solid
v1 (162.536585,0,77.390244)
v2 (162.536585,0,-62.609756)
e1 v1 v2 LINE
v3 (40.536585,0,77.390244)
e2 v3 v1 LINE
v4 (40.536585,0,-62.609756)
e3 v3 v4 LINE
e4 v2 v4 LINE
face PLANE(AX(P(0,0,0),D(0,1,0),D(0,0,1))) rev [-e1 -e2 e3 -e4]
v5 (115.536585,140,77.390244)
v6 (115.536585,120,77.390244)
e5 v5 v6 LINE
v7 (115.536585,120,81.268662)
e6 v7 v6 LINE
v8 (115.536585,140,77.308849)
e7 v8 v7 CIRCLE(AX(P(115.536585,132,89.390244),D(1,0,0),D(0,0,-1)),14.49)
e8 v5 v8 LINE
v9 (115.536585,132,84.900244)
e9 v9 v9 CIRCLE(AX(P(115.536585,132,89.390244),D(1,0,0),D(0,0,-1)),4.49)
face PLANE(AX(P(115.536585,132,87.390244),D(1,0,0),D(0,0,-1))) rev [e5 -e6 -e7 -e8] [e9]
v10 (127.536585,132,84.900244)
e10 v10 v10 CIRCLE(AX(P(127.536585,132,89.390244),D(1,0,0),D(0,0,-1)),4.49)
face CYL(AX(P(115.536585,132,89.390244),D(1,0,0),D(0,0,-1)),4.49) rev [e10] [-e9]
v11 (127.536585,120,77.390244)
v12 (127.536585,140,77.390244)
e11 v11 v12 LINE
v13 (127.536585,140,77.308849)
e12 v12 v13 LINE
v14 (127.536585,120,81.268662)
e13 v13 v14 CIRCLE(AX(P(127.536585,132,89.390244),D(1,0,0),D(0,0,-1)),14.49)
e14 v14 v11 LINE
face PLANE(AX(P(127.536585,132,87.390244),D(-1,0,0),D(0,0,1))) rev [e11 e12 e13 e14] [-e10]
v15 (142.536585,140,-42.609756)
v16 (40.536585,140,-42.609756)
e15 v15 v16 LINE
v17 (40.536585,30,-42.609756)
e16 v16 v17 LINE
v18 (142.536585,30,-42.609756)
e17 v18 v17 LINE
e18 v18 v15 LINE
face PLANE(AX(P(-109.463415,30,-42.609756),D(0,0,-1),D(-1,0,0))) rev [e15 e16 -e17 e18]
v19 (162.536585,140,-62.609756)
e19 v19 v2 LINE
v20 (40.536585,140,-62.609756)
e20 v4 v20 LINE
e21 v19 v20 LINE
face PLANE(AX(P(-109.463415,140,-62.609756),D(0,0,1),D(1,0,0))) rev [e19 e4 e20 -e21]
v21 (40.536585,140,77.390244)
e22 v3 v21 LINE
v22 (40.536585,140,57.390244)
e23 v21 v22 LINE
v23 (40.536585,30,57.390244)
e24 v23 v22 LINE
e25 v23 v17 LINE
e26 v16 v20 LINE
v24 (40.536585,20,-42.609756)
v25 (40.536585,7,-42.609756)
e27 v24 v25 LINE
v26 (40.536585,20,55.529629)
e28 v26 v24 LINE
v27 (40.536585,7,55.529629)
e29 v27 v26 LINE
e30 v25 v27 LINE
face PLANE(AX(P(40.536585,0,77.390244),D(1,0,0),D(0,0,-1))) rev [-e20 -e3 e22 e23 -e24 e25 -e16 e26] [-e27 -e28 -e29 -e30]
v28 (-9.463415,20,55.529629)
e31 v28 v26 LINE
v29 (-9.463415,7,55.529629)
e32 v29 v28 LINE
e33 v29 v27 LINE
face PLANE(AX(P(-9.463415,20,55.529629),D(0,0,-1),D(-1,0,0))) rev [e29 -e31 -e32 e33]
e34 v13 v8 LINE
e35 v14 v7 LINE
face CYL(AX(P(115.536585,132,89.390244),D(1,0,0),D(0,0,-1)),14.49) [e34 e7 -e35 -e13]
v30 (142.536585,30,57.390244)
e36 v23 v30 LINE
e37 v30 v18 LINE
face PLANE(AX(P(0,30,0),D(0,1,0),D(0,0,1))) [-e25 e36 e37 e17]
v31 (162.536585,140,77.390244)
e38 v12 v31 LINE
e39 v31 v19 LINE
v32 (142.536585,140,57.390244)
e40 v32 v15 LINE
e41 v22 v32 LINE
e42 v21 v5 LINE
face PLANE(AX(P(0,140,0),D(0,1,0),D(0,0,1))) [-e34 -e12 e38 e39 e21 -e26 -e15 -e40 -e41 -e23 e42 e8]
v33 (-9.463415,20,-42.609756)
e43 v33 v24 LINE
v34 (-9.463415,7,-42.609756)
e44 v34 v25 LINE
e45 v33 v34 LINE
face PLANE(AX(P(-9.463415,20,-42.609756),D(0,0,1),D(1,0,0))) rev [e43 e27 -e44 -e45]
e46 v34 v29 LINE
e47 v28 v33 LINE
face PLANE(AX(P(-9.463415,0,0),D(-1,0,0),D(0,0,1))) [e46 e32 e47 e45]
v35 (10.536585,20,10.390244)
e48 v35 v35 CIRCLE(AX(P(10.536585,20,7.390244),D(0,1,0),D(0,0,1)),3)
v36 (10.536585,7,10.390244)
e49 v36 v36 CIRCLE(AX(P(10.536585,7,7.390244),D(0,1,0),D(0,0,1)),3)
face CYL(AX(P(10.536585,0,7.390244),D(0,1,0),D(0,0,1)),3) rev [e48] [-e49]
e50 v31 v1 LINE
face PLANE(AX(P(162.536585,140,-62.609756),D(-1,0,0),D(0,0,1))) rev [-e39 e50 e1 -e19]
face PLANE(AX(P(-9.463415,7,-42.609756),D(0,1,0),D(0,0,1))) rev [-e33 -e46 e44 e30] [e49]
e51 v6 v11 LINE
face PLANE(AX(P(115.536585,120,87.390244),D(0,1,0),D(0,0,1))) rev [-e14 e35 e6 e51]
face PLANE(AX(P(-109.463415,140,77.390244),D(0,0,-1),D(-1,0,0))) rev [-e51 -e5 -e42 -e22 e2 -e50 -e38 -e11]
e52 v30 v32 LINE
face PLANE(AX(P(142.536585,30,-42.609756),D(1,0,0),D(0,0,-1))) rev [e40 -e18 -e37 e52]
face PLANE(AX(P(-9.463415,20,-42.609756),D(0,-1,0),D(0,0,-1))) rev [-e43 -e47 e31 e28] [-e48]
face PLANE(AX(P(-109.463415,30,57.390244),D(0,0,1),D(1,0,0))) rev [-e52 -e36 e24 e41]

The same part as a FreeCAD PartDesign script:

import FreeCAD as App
import Part
import Sketcher

V = App.Vector
Q = App.Units.Quantity

doc = App.newDocument("Part")
body = doc.addObject("PartDesign::Body", "Body")

# Sketch on XZ plane
sketch1 = body.newObject("Sketcher::SketchObject", "Sketch")
sketch1.AttachmentSupport = (doc.getObject("XZ_Plane"), [""])
sketch1.MapMode = "FlatFace"
sketch1.addGeometry([
    Part.LineSegment(V(-109, -63, 0), V(-109, 77, 0)),
    Part.LineSegment(V(-109, 77, 0), V(163, 77, 0)),
    Part.LineSegment(V(163, 77, 0), V(163, -63, 0)),
    Part.LineSegment(V(163, -63, 0), V(-109, -63, 0)),
], False)
sketch1.addConstraint([
    Sketcher.Constraint("Coincident", 0, 2, 1, 1),
    Sketcher.Constraint("Coincident", 1, 2, 2, 1),
    Sketcher.Constraint("Coincident", 2, 2, 3, 1),
    Sketcher.Constraint("Coincident", 3, 2, 0, 1),
    Sketcher.Constraint("Vertical", 0),
    Sketcher.Constraint("Horizontal", 1),
    Sketcher.Constraint("Vertical", 2),
    Sketcher.Constraint("Horizontal", 3),
    Sketcher.Constraint("DistanceX", 1, 1, 1, 2, Q("272 mm")),
    Sketcher.Constraint("DistanceY", 0, 1, 0, 2, Q("140 mm")),
    Sketcher.Constraint("DistanceX", 0, 2, -1, 1, Q("109.463415 mm")),
    Sketcher.Constraint("DistanceY", -1, 1, 0, 2, Q("77.390244 mm")),
])
pad1 = body.newObject("PartDesign::Pad", "Pad")
pad1.Profile = sketch1
pad1.Length = 140
pad1.Reversed = True

# Sketch on XZ plane
sketch2 = body.newObject("Sketcher::SketchObject", "Sketch001")
sketch2.AttachmentSupport = (doc.getObject("XZ_Plane"), [""])
sketch2.MapMode = "FlatFace"
sketch2.AttachmentOffset = App.Placement(V(0, 0, -140), App.Rotation())
sketch2.addGeometry([
    Part.LineSegment(V(-109, -43, 0), V(-109, 57, 0)),
    Part.LineSegment(V(-109, 57, 0), V(143, 57, 0)),
    Part.LineSegment(V(143, 57, 0), V(143, -43, 0)),
    Part.LineSegment(V(143, -43, 0), V(-109, -43, 0)),
], False)
sketch2.addConstraint([
    Sketcher.Constraint("Coincident", 0, 2, 1, 1),
    Sketcher.Constraint("Coincident", 1, 2, 2, 1),
    Sketcher.Constraint("Coincident", 2, 2, 3, 1),
    Sketcher.Constraint("Coincident", 3, 2, 0, 1),
    Sketcher.Constraint("Vertical", 0),
    Sketcher.Constraint("Horizontal", 1),
    Sketcher.Constraint("Vertical", 2),
    Sketcher.Constraint("Horizontal", 3),
    Sketcher.Constraint("DistanceX", 1, 1, 1, 2, Q("252 mm")),
    Sketcher.Constraint("DistanceY", 0, 1, 0, 2, Q("100 mm")),
    Sketcher.Constraint("DistanceX", 0, 2, -1, 1, Q("109.463415 mm")),
    Sketcher.Constraint("DistanceY", -1, 1, 0, 2, Q("57.390244 mm")),
])
pocket1 = body.newObject("PartDesign::Pocket", "Pocket")
pocket1.Profile = sketch2
pocket1.Length = 110
pocket1.Reversed = True

# Sketch on XY plane
sketch3 = body.newObject("Sketcher::SketchObject", "Sketch002")
sketch3.AttachmentSupport = (doc.getObject("XY_Plane"), [""])
sketch3.MapMode = "FlatFace"
sketch3.AttachmentOffset = App.Placement(V(0, 0, 77.390244), App.Rotation())
sketch3.addGeometry([
    Part.LineSegment(V(116, 132, 0), V(116, 120, 0)),
    Part.LineSegment(V(116, 120, 0), V(128, 120, 0)),
    Part.LineSegment(V(128, 120, 0), V(128, 132, 0)),
    Part.LineSegment(V(128, 132, 0), V(116, 132, 0)),
], False)
sketch3.addConstraint([
    Sketcher.Constraint("Coincident", 0, 2, 1, 1),
    Sketcher.Constraint("Coincident", 1, 2, 2, 1),
    Sketcher.Constraint("Coincident", 2, 2, 3, 1),
    Sketcher.Constraint("Coincident", 3, 2, 0, 1),
    Sketcher.Constraint("Vertical", 0),
    Sketcher.Constraint("Horizontal", 1),
    Sketcher.Constraint("Vertical", 2),
    Sketcher.Constraint("Horizontal", 3),
    Sketcher.Constraint("Equal", 3, 0),
    Sketcher.Constraint("DistanceX", 1, 1, 1, 2, Q("12 mm")),
    Sketcher.Constraint("DistanceY", -1, 1, 0, 2, Q("120 mm")),
    Sketcher.Constraint("DistanceX", -1, 1, 0, 2, Q("115.536585 mm")),
])
pad2 = body.newObject("PartDesign::Pad", "Pad001")
pad2.Profile = sketch3
pad2.Length = 10

# Sketch on YZ plane
sketch4 = body.newObject("Sketcher::SketchObject", "Sketch003")
sketch4.AttachmentSupport = (doc.getObject("YZ_Plane"), [""])
sketch4.MapMode = "FlatFace"
sketch4.AttachmentOffset = App.Placement(V(0, 0, 127.536585), App.Rotation())
sketch4.addGeometry([
    Part.Circle(V(132, 89.4, 0), V(0, 0, 1), 14.5),
    Part.Circle(V(132, 89.4, 0), V(0, 0, 1), 4.5),
], False)
sketch4.addConstraint([
    Sketcher.Constraint("Coincident", 1, 3, 0, 3),
    Sketcher.Constraint("Diameter", 0, Q("28.98 mm")),
    Sketcher.Constraint("Diameter", 1, Q("8.98 mm")),
    Sketcher.Constraint("DistanceX", -1, 1, 0, 3, Q("132 mm")),
    Sketcher.Constraint("DistanceY", -1, 1, 0, 3, Q("89.390244 mm")),
])
pad3 = body.newObject("PartDesign::Pad", "Pad002")
pad3.Profile = sketch4
pad3.Length = 12
pad3.Reversed = True

# Sketch on YZ plane
sketch5 = body.newObject("Sketcher::SketchObject", "Sketch004")
sketch5.AttachmentSupport = (doc.getObject("YZ_Plane"), [""])
sketch5.MapMode = "FlatFace"
sketch5.AttachmentOffset = App.Placement(V(0, 0, 127.536585), App.Rotation())
sketch5.addGeometry(Part.Circle(V(132, 89.4, 0), V(0, 0, 1), 4.5), False)
sketch5.addConstraint([
    Sketcher.Constraint("Diameter", 0, Q("8.98 mm")),
    Sketcher.Constraint("DistanceX", -1, 1, 0, 3, Q("132 mm")),
    Sketcher.Constraint("DistanceY", -1, 1, 0, 3, Q("89.390244 mm")),
])
pocket2 = body.newObject("PartDesign::Pocket", "Pocket001")
pocket2.Profile = sketch5
pocket2.Type = "ThroughAll"

# Sketch on XZ plane
sketch6 = body.newObject("Sketcher::SketchObject", "Sketch005")
sketch6.AttachmentSupport = (doc.getObject("XZ_Plane"), [""])
sketch6.MapMode = "FlatFace"
sketch6.AttachmentOffset = App.Placement(V(0, 0, -140), App.Rotation())
sketch6.addGeometry([
    Part.LineSegment(V(-109, -63, 0), V(-109, 77, 0)),
    Part.LineSegment(V(-109, 77, 0), V(41, 77, 0)),
    Part.LineSegment(V(41, 77, 0), V(41, -63, 0)),
    Part.LineSegment(V(41, -63, 0), V(-109, -63, 0)),
], False)
sketch6.addConstraint([
    Sketcher.Constraint("Coincident", 0, 2, 1, 1),
    Sketcher.Constraint("Coincident", 1, 2, 2, 1),
    Sketcher.Constraint("Coincident", 2, 2, 3, 1),
    Sketcher.Constraint("Coincident", 3, 2, 0, 1),
    Sketcher.Constraint("Vertical", 0),
    Sketcher.Constraint("Horizontal", 1),
    Sketcher.Constraint("Vertical", 2),
    Sketcher.Constraint("Horizontal", 3),
    Sketcher.Constraint("DistanceX", 1, 1, 1, 2, Q("150 mm")),
    Sketcher.Constraint("DistanceY", 0, 1, 0, 2, Q("140 mm")),
    Sketcher.Constraint("DistanceX", 0, 2, -1, 1, Q("109.463415 mm")),
    Sketcher.Constraint("DistanceY", -1, 1, 0, 2, Q("77.390244 mm")),
])
pocket3 = body.newObject("PartDesign::Pocket", "Pocket002")
pocket3.Profile = sketch6
pocket3.Type = "ThroughAll"
pocket3.Reversed = True

# Sketch on YZ plane
sketch7 = body.newObject("Sketcher::SketchObject", "Sketch006")
sketch7.AttachmentSupport = (doc.getObject("YZ_Plane"), [""])
sketch7.MapMode = "FlatFace"
sketch7.AttachmentOffset = App.Placement(V(0, 0, 40.536585), App.Rotation())
sketch7.addGeometry([
    Part.LineSegment(V(20, -43, 0), V(7, -43, 0)),
    Part.LineSegment(V(7, -43, 0), V(7, 56, 0)),
    Part.LineSegment(V(7, 56, 0), V(20, 56, 0)),
    Part.LineSegment(V(20, 56, 0), V(20, -43, 0)),
], False)
sketch7.addConstraint([
    Sketcher.Constraint("Coincident", 0, 2, 1, 1),
    Sketcher.Constraint("Coincident", 1, 2, 2, 1),
    Sketcher.Constraint("Coincident", 2, 2, 3, 1),
    Sketcher.Constraint("Coincident", 3, 2, 0, 1),
    Sketcher.Constraint("Horizontal", 0),
    Sketcher.Constraint("Vertical", 1),
    Sketcher.Constraint("Horizontal", 2),
    Sketcher.Constraint("Vertical", 3),
    Sketcher.Constraint("DistanceX", 0, 2, 0, 1, Q("13 mm")),
    Sketcher.Constraint("DistanceX", -1, 1, 0, 2, Q("7 mm")),
    Sketcher.Constraint("DistanceY", 1, 1, 1, 2, Q("98.139385 mm")),
    Sketcher.Constraint("DistanceY", -1, 1, 1, 2, Q("55.529629 mm")),
])
pad4 = body.newObject("PartDesign::Pad", "Pad003")
pad4.Profile = sketch7
pad4.Length = 50
pad4.Reversed = True

# Sketch on XZ plane
sketch8 = body.newObject("Sketcher::SketchObject", "Sketch007")
sketch8.AttachmentSupport = (doc.getObject("XZ_Plane"), [""])
sketch8.MapMode = "FlatFace"
sketch8.AttachmentOffset = App.Placement(V(0, 0, -20), App.Rotation())
sketch8.addGeometry(Part.Circle(V(10.5, 7.4, 0), V(0, 0, 1), 3), False)
sketch8.addConstraint([
    Sketcher.Constraint("Diameter", 0, Q("6 mm")),
    Sketcher.Constraint("DistanceX", -1, 1, 0, 3, Q("10.536585 mm")),
    Sketcher.Constraint("DistanceY", -1, 1, 0, 3, Q("7.390244 mm")),
])
pocket4 = body.newObject("PartDesign::Pocket", "Pocket003")
pocket4.Profile = sketch8
pocket4.Type = "ThroughAll"
pocket4.Reversed = True

doc.recompute()
